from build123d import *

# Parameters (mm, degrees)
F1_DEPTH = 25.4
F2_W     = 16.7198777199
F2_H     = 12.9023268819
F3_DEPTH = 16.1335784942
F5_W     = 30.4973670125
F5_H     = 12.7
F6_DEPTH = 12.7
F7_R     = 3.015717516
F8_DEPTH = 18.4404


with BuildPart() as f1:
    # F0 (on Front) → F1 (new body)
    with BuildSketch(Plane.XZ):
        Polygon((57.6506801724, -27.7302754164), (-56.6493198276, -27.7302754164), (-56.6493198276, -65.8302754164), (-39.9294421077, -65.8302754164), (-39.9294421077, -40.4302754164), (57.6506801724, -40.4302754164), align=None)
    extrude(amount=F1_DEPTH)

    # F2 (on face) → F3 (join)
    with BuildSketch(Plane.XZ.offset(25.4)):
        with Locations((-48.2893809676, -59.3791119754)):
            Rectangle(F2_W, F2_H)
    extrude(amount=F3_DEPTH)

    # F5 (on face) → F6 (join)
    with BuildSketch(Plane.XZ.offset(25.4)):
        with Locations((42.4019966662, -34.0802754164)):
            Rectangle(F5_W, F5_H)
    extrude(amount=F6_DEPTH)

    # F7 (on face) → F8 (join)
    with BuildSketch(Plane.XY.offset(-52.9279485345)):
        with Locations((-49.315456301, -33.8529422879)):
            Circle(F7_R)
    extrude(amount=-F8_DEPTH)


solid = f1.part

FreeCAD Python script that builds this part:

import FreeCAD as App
import Part
import Sketcher
Q = App.Units.Quantity


def add_polygon(sketch, points):
    """Adds a closed chain of lines whose ends are joined by coincident constraints."""
    first, n = sketch.GeometryCount, len(points)
    for a, b in zip(points, points[1:] + points[:1]):
        sketch.addGeometry(Part.LineSegment(App.Vector(*a, 0), App.Vector(*b, 0)), False)
    for i in range(n):
        sketch.addConstraint(Sketcher.Constraint("Coincident", first + i, 2, first + (i + 1) % n, 1))

doc = App.newDocument("Part")
body = doc.addObject("PartDesign::Body", "Body")

sketch1 = body.newObject("Sketcher::SketchObject", "Sketch")
sketch1.AttachmentSupport = (doc.getObject("XZ_Plane"), [""])
sketch1.MapMode = "FlatFace"
add_polygon(sketch1, [(58, -28), (-57, -28), (-57, -66), (-40, -66), (-40, -40), (58, -40)])
sketch1.addConstraint([
    Sketcher.Constraint("Horizontal", 0),
    Sketcher.Constraint("Vertical", 1),
    Sketcher.Constraint("Horizontal", 2),
    Sketcher.Constraint("Vertical", 3),
    Sketcher.Constraint("Horizontal", 4),
    Sketcher.Constraint("Vertical", 5),
    Sketcher.Constraint("DistanceY", 3, 1, 3, 2, Q("1 in")),
    Sketcher.Constraint("DistanceX", 0, 2, 0, 1, Q("4.5 in")),
    Sketcher.Constraint("DistanceY", 1, 2, 1, 1, Q("1.5 in")),
    Sketcher.Constraint("DistanceX", 2, 1, 2, 2, Q("16.719878 mm")),
    Sketcher.Constraint("DistanceX", 0, 2, -1, 1, Q("56.64932 mm")),
    Sketcher.Constraint("DistanceY", 0, 2, -1, 1, Q("27.730275 mm")),
])
pad1 = body.newObject("PartDesign::Pad", "Pad")
pad1.Profile = sketch1
pad1.Length = Q("1 in")

sketch2 = body.newObject("Sketcher::SketchObject", "Sketch001")
sketch2.AttachmentSupport = (doc.getObject("XZ_Plane"), [""])
sketch2.MapMode = "FlatFace"
sketch2.AttachmentOffset = App.Placement(App.Vector(0, 0, 1 * 25.4), App.Rotation())
add_polygon(sketch2, [(-57, -53), (-57, -66), (-40, -66), (-40, -53)])
sketch2.addConstraint([
    Sketcher.Constraint("Vertical", 0),
    Sketcher.Constraint("Horizontal", 1),
    Sketcher.Constraint("Vertical", 2),
    Sketcher.Constraint("Horizontal", 3),
    Sketcher.Constraint("DistanceX", 1, 1, 1, 2, Q("16.719878 mm")),
    Sketcher.Constraint("DistanceY", 0, 2, 0, 1, Q("12.902327 mm")),
    Sketcher.Constraint("DistanceX", 0, 2, -1, 1, Q("56.64932 mm")),
    Sketcher.Constraint("DistanceY", 2, 2, -1, 1, Q("52.927949 mm")),
])
pad2 = body.newObject("PartDesign::Pad", "Pad001")
pad2.Profile = sketch2
pad2.Length = 16.133578

sketch3 = body.newObject("Sketcher::SketchObject", "Sketch002")
sketch3.AttachmentSupport = (doc.getObject("XZ_Plane"), [""])
sketch3.MapMode = "FlatFace"
sketch3.AttachmentOffset = App.Placement(App.Vector(0, 0, 1 * 25.4), App.Rotation())
add_polygon(sketch3, [(27, -28), (27, -40), (58, -40), (58, -28)])
sketch3.addConstraint([
    Sketcher.Constraint("Vertical", 0),
    Sketcher.Constraint("Horizontal", 1),
    Sketcher.Constraint("Vertical", 2),
    Sketcher.Constraint("Horizontal", 3),
    Sketcher.Constraint("DistanceY", 0, 2, 0, 1, Q("0.5 in")),
    Sketcher.Constraint("DistanceX", 1, 1, 1, 2, Q("30.497367 mm")),
    Sketcher.Constraint("DistanceX", -1, 1, 1, 2, Q("57.65068 mm")),
    Sketcher.Constraint("DistanceY", 0, 2, -1, 1, Q("40.430275 mm")),
])
pad3 = body.newObject("PartDesign::Pad", "Pad002")
pad3.Profile = sketch3
pad3.Length = Q("0.5 in")

sketch4 = body.newObject("Sketcher::SketchObject", "Sketch003")
sketch4.AttachmentSupport = (doc.getObject("XY_Plane"), [""])
sketch4.MapMode = "FlatFace"
sketch4.AttachmentOffset = App.Placement(App.Vector(0, 0, -52.927949), App.Rotation())
sketch4.addGeometry(Part.Circle(App.Vector(-49.3, -33.9, 0), App.Vector(0, 0, 1), 3), False)
sketch4.addConstraint([
    Sketcher.Constraint("Diameter", 0, Q("6.031435 mm")),
    Sketcher.Constraint("DistanceX", 0, 3, -1, 1, Q("49.315456 mm")),
    Sketcher.Constraint("DistanceY", 0, 3, -1, 1, Q("33.852942 mm")),
])
pad4 = body.newObject("PartDesign::Pad", "Pad003")
pad4.Profile = sketch4
pad4.Length = Q("0.726 in")
pad4.Reversed = True

doc.recompute()
